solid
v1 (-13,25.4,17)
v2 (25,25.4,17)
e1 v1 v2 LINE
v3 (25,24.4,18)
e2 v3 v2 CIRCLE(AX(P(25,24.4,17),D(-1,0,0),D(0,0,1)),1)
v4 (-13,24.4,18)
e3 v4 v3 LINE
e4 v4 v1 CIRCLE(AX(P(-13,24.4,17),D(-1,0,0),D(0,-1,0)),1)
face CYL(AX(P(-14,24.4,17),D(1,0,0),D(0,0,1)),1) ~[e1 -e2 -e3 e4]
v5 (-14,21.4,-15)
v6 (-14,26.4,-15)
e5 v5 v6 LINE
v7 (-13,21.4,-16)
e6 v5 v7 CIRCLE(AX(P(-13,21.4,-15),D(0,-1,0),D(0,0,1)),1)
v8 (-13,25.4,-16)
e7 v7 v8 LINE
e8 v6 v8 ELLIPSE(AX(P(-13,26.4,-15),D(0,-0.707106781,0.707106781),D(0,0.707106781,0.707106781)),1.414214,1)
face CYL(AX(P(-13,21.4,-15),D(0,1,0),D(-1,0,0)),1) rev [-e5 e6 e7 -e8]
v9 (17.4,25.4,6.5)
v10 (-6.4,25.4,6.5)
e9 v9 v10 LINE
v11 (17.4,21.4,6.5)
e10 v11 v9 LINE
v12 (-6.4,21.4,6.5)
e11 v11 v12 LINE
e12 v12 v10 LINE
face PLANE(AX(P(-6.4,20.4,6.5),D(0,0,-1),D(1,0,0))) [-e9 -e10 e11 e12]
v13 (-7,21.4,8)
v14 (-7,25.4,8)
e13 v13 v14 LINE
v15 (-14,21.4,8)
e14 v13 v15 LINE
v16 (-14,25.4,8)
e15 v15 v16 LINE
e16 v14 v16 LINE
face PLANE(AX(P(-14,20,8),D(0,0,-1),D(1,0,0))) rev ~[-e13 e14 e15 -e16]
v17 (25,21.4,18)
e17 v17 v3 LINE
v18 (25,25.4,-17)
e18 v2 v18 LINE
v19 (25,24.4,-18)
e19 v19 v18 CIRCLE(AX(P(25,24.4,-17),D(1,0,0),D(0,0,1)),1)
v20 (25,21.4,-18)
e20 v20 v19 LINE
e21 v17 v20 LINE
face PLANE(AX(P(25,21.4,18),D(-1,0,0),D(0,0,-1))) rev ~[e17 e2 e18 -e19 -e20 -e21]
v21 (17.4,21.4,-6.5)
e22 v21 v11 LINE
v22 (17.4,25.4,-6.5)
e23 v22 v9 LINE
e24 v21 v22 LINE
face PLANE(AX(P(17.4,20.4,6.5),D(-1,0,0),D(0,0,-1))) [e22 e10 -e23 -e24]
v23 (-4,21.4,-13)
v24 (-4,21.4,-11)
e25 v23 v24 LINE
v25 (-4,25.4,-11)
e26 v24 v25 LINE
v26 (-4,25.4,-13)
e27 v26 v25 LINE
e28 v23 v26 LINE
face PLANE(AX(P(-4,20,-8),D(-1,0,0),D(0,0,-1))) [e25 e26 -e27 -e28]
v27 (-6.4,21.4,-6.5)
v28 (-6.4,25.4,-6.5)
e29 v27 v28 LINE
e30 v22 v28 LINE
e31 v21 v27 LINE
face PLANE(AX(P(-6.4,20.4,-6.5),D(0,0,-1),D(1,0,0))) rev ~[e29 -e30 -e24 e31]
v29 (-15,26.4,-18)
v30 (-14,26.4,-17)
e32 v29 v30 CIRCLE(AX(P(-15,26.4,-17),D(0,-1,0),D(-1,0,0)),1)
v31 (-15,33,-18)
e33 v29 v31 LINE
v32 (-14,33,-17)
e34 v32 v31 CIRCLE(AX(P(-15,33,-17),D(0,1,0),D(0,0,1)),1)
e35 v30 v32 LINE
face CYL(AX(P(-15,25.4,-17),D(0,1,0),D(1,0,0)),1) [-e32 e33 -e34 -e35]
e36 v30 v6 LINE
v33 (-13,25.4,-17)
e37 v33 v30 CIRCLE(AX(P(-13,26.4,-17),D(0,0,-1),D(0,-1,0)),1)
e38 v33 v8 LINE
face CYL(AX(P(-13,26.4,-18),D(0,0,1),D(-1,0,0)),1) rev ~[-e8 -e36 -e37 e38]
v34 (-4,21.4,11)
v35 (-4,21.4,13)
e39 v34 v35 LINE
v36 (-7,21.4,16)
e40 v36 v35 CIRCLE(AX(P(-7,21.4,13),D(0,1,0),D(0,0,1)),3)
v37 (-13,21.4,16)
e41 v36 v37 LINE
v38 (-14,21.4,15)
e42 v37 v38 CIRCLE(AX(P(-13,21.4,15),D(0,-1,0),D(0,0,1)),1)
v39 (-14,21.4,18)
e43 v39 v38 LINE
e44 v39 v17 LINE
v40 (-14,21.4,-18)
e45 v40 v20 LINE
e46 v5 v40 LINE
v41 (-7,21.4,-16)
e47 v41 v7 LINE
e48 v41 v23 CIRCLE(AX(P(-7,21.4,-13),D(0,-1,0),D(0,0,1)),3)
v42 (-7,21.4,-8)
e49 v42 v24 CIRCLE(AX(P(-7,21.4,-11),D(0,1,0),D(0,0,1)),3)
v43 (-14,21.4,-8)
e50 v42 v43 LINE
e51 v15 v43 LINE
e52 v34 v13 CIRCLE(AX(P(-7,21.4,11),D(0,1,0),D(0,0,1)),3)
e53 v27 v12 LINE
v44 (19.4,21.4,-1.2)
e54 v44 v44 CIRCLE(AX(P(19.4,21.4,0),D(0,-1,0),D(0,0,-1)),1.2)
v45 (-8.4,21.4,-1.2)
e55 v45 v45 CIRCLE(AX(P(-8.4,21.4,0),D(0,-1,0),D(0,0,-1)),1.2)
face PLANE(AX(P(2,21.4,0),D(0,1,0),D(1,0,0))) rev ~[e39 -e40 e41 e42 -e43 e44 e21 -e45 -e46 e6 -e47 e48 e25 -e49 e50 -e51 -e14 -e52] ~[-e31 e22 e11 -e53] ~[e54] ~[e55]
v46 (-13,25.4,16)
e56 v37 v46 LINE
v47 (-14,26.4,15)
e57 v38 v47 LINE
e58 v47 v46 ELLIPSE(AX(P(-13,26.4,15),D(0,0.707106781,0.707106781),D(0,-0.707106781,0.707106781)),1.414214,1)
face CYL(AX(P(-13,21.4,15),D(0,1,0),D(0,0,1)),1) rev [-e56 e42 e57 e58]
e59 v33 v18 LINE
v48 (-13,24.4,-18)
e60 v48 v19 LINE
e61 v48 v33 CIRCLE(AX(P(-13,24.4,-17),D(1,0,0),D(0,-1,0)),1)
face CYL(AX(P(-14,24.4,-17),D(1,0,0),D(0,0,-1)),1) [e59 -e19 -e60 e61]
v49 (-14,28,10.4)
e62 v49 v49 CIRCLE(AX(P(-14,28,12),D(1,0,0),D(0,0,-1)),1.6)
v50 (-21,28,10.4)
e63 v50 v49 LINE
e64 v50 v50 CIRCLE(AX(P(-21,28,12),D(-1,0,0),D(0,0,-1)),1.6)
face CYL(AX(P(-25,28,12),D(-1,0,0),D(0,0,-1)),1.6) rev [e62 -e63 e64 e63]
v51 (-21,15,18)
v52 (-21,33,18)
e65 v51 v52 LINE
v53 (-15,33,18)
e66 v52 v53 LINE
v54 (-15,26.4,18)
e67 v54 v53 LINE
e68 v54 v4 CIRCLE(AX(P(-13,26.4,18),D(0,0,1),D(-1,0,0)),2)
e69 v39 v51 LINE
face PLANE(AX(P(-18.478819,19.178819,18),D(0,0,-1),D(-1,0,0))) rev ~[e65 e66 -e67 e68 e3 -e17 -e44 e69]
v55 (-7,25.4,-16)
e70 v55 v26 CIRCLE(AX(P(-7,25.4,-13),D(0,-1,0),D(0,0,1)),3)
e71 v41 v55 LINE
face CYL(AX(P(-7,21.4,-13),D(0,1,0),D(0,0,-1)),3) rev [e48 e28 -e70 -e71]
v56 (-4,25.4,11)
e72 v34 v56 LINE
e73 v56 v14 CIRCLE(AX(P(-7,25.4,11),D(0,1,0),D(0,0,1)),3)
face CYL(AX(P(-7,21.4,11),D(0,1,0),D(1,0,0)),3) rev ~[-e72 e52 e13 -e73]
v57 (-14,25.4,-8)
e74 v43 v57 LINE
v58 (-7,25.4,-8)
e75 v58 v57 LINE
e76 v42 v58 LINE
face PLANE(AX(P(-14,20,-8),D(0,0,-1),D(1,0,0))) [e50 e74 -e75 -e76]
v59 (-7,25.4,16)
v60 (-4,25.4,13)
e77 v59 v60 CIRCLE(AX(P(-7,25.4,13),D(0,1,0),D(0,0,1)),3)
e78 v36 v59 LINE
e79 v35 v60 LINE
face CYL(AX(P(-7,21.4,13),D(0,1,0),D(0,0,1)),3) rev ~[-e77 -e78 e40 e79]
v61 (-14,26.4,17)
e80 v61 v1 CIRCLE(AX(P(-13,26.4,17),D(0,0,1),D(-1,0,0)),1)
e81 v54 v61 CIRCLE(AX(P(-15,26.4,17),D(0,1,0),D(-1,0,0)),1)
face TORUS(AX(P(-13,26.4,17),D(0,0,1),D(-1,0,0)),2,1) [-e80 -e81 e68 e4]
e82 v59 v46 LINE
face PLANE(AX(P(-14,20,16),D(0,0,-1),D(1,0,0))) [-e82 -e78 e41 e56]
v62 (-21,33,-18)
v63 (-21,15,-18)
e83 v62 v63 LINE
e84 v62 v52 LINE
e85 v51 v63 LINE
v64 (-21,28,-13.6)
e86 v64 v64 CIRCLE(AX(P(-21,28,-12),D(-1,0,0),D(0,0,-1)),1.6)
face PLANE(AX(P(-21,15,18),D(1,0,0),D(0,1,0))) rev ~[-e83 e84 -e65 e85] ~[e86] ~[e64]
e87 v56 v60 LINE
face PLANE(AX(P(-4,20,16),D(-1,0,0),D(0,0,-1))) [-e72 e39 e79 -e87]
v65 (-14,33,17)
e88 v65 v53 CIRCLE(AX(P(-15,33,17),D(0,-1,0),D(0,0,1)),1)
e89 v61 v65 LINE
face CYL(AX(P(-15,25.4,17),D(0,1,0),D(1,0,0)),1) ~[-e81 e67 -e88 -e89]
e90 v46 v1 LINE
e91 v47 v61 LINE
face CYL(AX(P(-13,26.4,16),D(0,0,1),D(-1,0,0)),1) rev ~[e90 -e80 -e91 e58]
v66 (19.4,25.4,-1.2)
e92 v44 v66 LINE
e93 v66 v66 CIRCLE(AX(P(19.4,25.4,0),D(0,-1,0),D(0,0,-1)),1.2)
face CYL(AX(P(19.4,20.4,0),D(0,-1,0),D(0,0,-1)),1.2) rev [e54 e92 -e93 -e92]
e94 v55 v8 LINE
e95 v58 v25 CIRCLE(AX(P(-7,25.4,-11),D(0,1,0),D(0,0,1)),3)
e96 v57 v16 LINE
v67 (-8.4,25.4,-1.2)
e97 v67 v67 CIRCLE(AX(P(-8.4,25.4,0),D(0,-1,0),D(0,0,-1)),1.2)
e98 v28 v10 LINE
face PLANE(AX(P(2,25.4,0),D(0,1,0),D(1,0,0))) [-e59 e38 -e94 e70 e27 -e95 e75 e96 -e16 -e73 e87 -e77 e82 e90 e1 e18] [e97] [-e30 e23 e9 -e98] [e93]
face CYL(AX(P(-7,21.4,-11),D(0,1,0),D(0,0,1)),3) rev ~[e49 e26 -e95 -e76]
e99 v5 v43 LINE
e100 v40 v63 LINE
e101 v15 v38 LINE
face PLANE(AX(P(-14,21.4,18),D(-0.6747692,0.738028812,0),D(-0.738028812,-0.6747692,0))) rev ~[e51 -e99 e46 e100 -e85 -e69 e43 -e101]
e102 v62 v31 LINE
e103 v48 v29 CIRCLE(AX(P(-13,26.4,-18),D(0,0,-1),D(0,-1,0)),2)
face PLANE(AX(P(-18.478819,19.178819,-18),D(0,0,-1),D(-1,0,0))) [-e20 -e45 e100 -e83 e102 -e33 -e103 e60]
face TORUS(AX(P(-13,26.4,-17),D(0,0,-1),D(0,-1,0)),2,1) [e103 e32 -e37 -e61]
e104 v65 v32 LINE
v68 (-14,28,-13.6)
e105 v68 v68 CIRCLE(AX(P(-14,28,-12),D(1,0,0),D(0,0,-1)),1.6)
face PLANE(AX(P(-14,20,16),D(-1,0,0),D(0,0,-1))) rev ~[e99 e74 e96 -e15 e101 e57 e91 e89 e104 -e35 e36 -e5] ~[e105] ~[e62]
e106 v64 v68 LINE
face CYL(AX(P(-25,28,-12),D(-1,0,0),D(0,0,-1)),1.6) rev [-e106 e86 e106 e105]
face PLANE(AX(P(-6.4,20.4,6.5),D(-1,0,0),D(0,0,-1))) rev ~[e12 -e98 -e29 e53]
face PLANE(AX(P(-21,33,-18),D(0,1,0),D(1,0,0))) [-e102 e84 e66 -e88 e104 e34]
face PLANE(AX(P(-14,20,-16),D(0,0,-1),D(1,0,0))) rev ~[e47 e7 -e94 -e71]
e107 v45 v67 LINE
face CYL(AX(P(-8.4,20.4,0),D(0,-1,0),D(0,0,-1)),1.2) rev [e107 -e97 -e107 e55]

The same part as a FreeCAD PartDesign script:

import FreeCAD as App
import Part
import Sketcher
from FreeCAD import Vector
Q = App.Units.Quantity


def edges_at(feature, points):
    """Names of the edges that pass closest to the given points."""
    edges = feature.Shape.Edges
    near = lambda p: min(range(len(edges)), key=lambda i: edges[i].distToShape(Part.Vertex(*p))[0])
    return sorted({f"Edge{near(p) + 1}" for p in points})

doc = App.newDocument("Part")
body = doc.addObject("PartDesign::Body", "Body")

sketch1 = doc.addObject("Sketcher::SketchObject", "Sketch")
body.addObject(sketch1)
sketch1.AttachmentSupport = (doc.XZ_Plane, [""])
sketch1.MapMode = "FlatFace"
sketch1.AttachmentOffset = App.Placement(Vector(0, 0, -21.4), App.Rotation())
sketch1.addGeometry(Part.LineSegment(Vector(-21, -18, 0), Vector(-21, 18, 0)), False)
sketch1.addGeometry(Part.LineSegment(Vector(-21, 18, 0), Vector(25, 18, 0)), False)
sketch1.addGeometry(Part.LineSegment(Vector(25, 18, 0), Vector(25, -18, 0)), False)
sketch1.addGeometry(Part.LineSegment(Vector(25, -18, 0), Vector(-21, -18, 0)), False)
sketch1.addConstraint(Sketcher.Constraint("Coincident", 0, 2, 1, 1))
sketch1.addConstraint(Sketcher.Constraint("Coincident", 1, 2, 2, 1))
sketch1.addConstraint(Sketcher.Constraint("Coincident", 2, 2, 3, 1))
sketch1.addConstraint(Sketcher.Constraint("Coincident", 3, 2, 0, 1))
sketch1.addConstraint(Sketcher.Constraint("Vertical", 0))
sketch1.addConstraint(Sketcher.Constraint("Horizontal", 1))
sketch1.addConstraint(Sketcher.Constraint("Vertical", 2))
sketch1.addConstraint(Sketcher.Constraint("Horizontal", 3))
sketch1.addConstraint(Sketcher.Constraint("DistanceX", 1, 1, 1, 2, Q("46 mm")))
sketch1.addConstraint(Sketcher.Constraint("DistanceY", 0, 1, 0, 2, Q("36 mm")))
sketch1.addConstraint(Sketcher.Constraint("DistanceX", 0, 2, -1, 1, Q("21 mm")))
sketch1.addConstraint(Sketcher.Constraint("DistanceY", -1, 1, 0, 2, Q("18 mm")))
pad1 = doc.addObject("PartDesign::Pad", "Pad")
body.addObject(pad1)
pad1.Profile = sketch1
pad1.Length = 4
pad1.Reversed = True

sketch2 = doc.addObject("Sketcher::SketchObject", "Sketch001")
body.addObject(sketch2)
sketch2.AttachmentSupport = (doc.XY_Plane, [""])
sketch2.MapMode = "FlatFace"
sketch2.AttachmentOffset = App.Placement(Vector(0, 0, -18), App.Rotation())
sketch2.addGeometry(Part.LineSegment(Vector(-21, 33, 0), Vector(-21, 23, 0)), False)
sketch2.addGeometry(Part.LineSegment(Vector(-21, 23, 0), Vector(-14, 23, 0)), False)
sketch2.addGeometry(Part.LineSegment(Vector(-14, 23, 0), Vector(-14, 33, 0)), False)
sketch2.addGeometry(Part.LineSegment(Vector(-14, 33, 0), Vector(-21, 33, 0)), False)
sketch2.addConstraint(Sketcher.Constraint("Coincident", 0, 2, 1, 1))
sketch2.addConstraint(Sketcher.Constraint("Coincident", 1, 2, 2, 1))
sketch2.addConstraint(Sketcher.Constraint("Coincident", 2, 2, 3, 1))
sketch2.addConstraint(Sketcher.Constraint("Coincident", 3, 2, 0, 1))
sketch2.addConstraint(Sketcher.Constraint("Vertical", 0))
sketch2.addConstraint(Sketcher.Constraint("Horizontal", 1))
sketch2.addConstraint(Sketcher.Constraint("Vertical", 2))
sketch2.addConstraint(Sketcher.Constraint("Horizontal", 3))
sketch2.addConstraint(Sketcher.Constraint("DistanceX", 1, 1, 1, 2, Q("7 mm")))
sketch2.addConstraint(Sketcher.Constraint("DistanceY", 0, 2, 0, 1, Q("10 mm")))
sketch2.addConstraint(Sketcher.Constraint("DistanceX", 0, 2, -1, 1, Q("21 mm")))
sketch2.addConstraint(Sketcher.Constraint("DistanceY", -1, 1, 0, 2, Q("23 mm")))
pad2 = doc.addObject("PartDesign::Pad", "Pad001")
body.addObject(pad2)
pad2.Profile = sketch2
pad2.Length = 36

sketch3 = doc.addObject("Sketcher::SketchObject", "Sketch002")
body.addObject(sketch3)
sketch3.AttachmentSupport = (doc.XZ_Plane, [""])
sketch3.MapMode = "FlatFace"
sketch3.AttachmentOffset = App.Placement(Vector(0, 0, -20.4), App.Rotation())
sketch3.addGeometry(Part.LineSegment(Vector(-6, -6, 0), Vector(-6, 6, 0)), False)
sketch3.addGeometry(Part.LineSegment(Vector(-6, 6, 0), Vector(17, 6, 0)), False)
sketch3.addGeometry(Part.LineSegment(Vector(17, 6, 0), Vector(17, -6, 0)), False)
sketch3.addGeometry(Part.LineSegment(Vector(17, -6, 0), Vector(-6, -6, 0)), False)
sketch3.addConstraint(Sketcher.Constraint("Coincident", 0, 2, 1, 1))
sketch3.addConstraint(Sketcher.Constraint("Coincident", 1, 2, 2, 1))
sketch3.addConstraint(Sketcher.Constraint("Coincident", 2, 2, 3, 1))
sketch3.addConstraint(Sketcher.Constraint("Coincident", 3, 2, 0, 1))
sketch3.addConstraint(Sketcher.Constraint("Vertical", 0))
sketch3.addConstraint(Sketcher.Constraint("Horizontal", 1))
sketch3.addConstraint(Sketcher.Constraint("Vertical", 2))
sketch3.addConstraint(Sketcher.Constraint("Horizontal", 3))
sketch3.addConstraint(Sketcher.Constraint("DistanceY", 0, 1, 0, 2, Q("13 mm")))
sketch3.addConstraint(Sketcher.Constraint("DistanceX", 1, 1, 1, 2, Q("23.8 mm")))
sketch3.addConstraint(Sketcher.Constraint("DistanceX", 0, 2, -1, 1, Q("6.4 mm")))
sketch3.addConstraint(Sketcher.Constraint("DistanceY", -1, 1, 0, 2, Q("6.5 mm")))
pocket1 = doc.addObject("PartDesign::Pocket", "Pocket")
body.addObject(pocket1)
pocket1.Profile = sketch3
pocket1.Type = "ThroughAll"

sketch4 = doc.addObject("Sketcher::SketchObject", "Sketch003")
body.addObject(sketch4)
sketch4.AttachmentSupport = (doc.XZ_Plane, [""])
sketch4.MapMode = "FlatFace"
sketch4.AttachmentOffset = App.Placement(Vector(0, 0, -20), App.Rotation())
sketch4.addGeometry(Part.LineSegment(Vector(-14, -16, 0), Vector(-14, -8, 0)), False)
sketch4.addGeometry(Part.LineSegment(Vector(-14, -8, 0), Vector(-4, -8, 0)), False)
sketch4.addGeometry(Part.LineSegment(Vector(-4, -8, 0), Vector(-4, -16, 0)), False)
sketch4.addGeometry(Part.LineSegment(Vector(-4, -16, 0), Vector(-14, -16, 0)), False)
sketch4.addConstraint(Sketcher.Constraint("Coincident", 0, 2, 1, 1))
sketch4.addConstraint(Sketcher.Constraint("Coincident", 1, 2, 2, 1))
sketch4.addConstraint(Sketcher.Constraint("Coincident", 2, 2, 3, 1))
sketch4.addConstraint(Sketcher.Constraint("Coincident", 3, 2, 0, 1))
sketch4.addConstraint(Sketcher.Constraint("Vertical", 0))
sketch4.addConstraint(Sketcher.Constraint("Horizontal", 1))
sketch4.addConstraint(Sketcher.Constraint("Vertical", 2))
sketch4.addConstraint(Sketcher.Constraint("Horizontal", 3))
sketch4.addConstraint(Sketcher.Constraint("DistanceX", 1, 1, 1, 2, Q("10 mm")))
sketch4.addConstraint(Sketcher.Constraint("DistanceY", 0, 1, 0, 2, Q("8 mm")))
sketch4.addConstraint(Sketcher.Constraint("DistanceX", 0, 2, -1, 1, Q("14 mm")))
sketch4.addConstraint(Sketcher.Constraint("DistanceY", 0, 2, -1, 1, Q("8 mm")))
pocket2 = doc.addObject("PartDesign::Pocket", "Pocket001")
body.addObject(pocket2)
pocket2.Profile = sketch4
pocket2.Type = "ThroughAll"

sketch5 = doc.addObject("Sketcher::SketchObject", "Sketch004")
body.addObject(sketch5)
sketch5.AttachmentSupport = (doc.XZ_Plane, [""])
sketch5.MapMode = "FlatFace"
sketch5.AttachmentOffset = App.Placement(Vector(0, 0, -20), App.Rotation())
sketch5.addGeometry(Part.LineSegment(Vector(-14, 8, 0), Vector(-14, 16, 0)), False)
sketch5.addGeometry(Part.LineSegment(Vector(-14, 16, 0), Vector(-4, 16, 0)), False)
sketch5.addGeometry(Part.LineSegment(Vector(-4, 16, 0), Vector(-4, 8, 0)), False)
sketch5.addGeometry(Part.LineSegment(Vector(-4, 8, 0), Vector(-14, 8, 0)), False)
sketch5.addConstraint(Sketcher.Constraint("Coincident", 0, 2, 1, 1))
sketch5.addConstraint(Sketcher.Constraint("Coincident", 1, 2, 2, 1))
sketch5.addConstraint(Sketcher.Constraint("Coincident", 2, 2, 3, 1))
sketch5.addConstraint(Sketcher.Constraint("Coincident", 3, 2, 0, 1))
sketch5.addConstraint(Sketcher.Constraint("Vertical", 0))
sketch5.addConstraint(Sketcher.Constraint("Horizontal", 1))
sketch5.addConstraint(Sketcher.Constraint("Vertical", 2))
sketch5.addConstraint(Sketcher.Constraint("Horizontal", 3))
sketch5.addConstraint(Sketcher.Constraint("DistanceX", 1, 1, 1, 2, Q("10 mm")))
sketch5.addConstraint(Sketcher.Constraint("DistanceY", 0, 1, 0, 2, Q("8 mm")))
sketch5.addConstraint(Sketcher.Constraint("DistanceX", 0, 2, -1, 1, Q("14 mm")))
sketch5.addConstraint(Sketcher.Constraint("DistanceY", -1, 1, 0, 2, Q("16 mm")))
pocket3 = doc.addObject("PartDesign::Pocket", "Pocket002")
body.addObject(pocket3)
pocket3.Profile = sketch5
pocket3.Type = "ThroughAll"

sketch6 = doc.addObject("Sketcher::SketchObject", "Sketch005")
body.addObject(sketch6)
sketch6.AttachmentSupport = (doc.YZ_Plane, [""])
sketch6.MapMode = "FlatFace"
sketch6.AttachmentOffset = App.Placement(Vector(0, 0, -25), App.Rotation())
sketch6.addGeometry(Part.Circle(Vector(28, -12, 0), Vector(0, 0, 1), 1.6), False)
sketch6.addGeometry(Part.Circle(Vector(28, 12, 0), Vector(0, 0, 1), 1.6), False)
sketch6.addConstraint(Sketcher.Constraint("Equal", 0, 1))
sketch6.addConstraint(Sketcher.Constraint("Symmetric", 0, 3, 1, 3, -1))
sketch6.addConstraint(Sketcher.Constraint("Diameter", 0, Q("3.2 mm")))
sketch6.addConstraint(Sketcher.Constraint("DistanceX", -1, 1, 0, 3, Q("28 mm")))
sketch6.addConstraint(Sketcher.Constraint("DistanceY", 0, 3, -1, 1, Q("12 mm")))
pocket4 = doc.addObject("PartDesign::Pocket", "Pocket003")
body.addObject(pocket4)
pocket4.Profile = sketch6
pocket4.Length = 11
pocket4.Reversed = True
doc.recompute()

fillet = doc.addObject("PartDesign::Fillet", "Fillet")
body.addObject(fillet)
fillet.Base = (pocket4, edges_at(pocket4, [
    (-4, 23.4, -8),
    (-4, 23.4, -16),
    (-4, 23.4, 16),
    (-4, 23.4, 8),
]))
fillet.Radius = 3
doc.recompute()

fillet2 = doc.addObject("PartDesign::Fillet", "Fillet001")
body.addObject(fillet2)
fillet2.Base = (fillet, edges_at(fillet, [
    (5.5, 25.4, 18),
    (-14, 25.4, 17),
    (5.5, 25.4, -18),
    (-14, 29.2, 18),
    (-14, 29.2, -18),
    (-14, 25.4, -17),
    (-14, 23.4, -16),
    (-14, 23.4, 16),
]))
fillet2.Radius = 1

sketch7 = doc.addObject("Sketcher::SketchObject", "Sketch006")
body.addObject(sketch7)
sketch7.AttachmentSupport = (doc.XY_Plane, [""])
sketch7.MapMode = "FlatFace"
sketch7.AttachmentOffset = App.Placement(Vector(0, 0, 18), App.Rotation())
sketch7.addGeometry(Part.LineSegment(Vector(-14, 21, 0), Vector(-21, 15, 0)), False)
sketch7.addGeometry(Part.LineSegment(Vector(-21, 15, 0), Vector(-21, 21, 0)), False)
sketch7.addGeometry(Part.LineSegment(Vector(-21, 21, 0), Vector(-14, 21, 0)), False)
sketch7.addConstraint(Sketcher.Constraint("Coincident", 0, 2, 1, 1))
sketch7.addConstraint(Sketcher.Constraint("Coincident", 1, 2, 2, 1))
sketch7.addConstraint(Sketcher.Constraint("Coincident", 2, 2, 0, 1))
sketch7.addConstraint(Sketcher.Constraint("Vertical", 1))
sketch7.addConstraint(Sketcher.Constraint("Horizontal", 2))
sketch7.addConstraint(Sketcher.Constraint("DistanceX", 2, 1, 2, 2, Q("7 mm")))
sketch7.addConstraint(Sketcher.Constraint("DistanceY", 1, 1, 1, 2, Q("6.4 mm")))
sketch7.addConstraint(Sketcher.Constraint("DistanceX", 0, 2, -1, 1, Q("21 mm")))
sketch7.addConstraint(Sketcher.Constraint("DistanceY", -1, 1, 0, 2, Q("15 mm")))
pad3 = doc.addObject("PartDesign::Pad", "Pad002")
body.addObject(pad3)
pad3.Profile = sketch7
pad3.Length = 36
pad3.Reversed = True

sketch8 = doc.addObject("Sketcher::SketchObject", "Sketch007")
body.addObject(sketch8)
sketch8.AttachmentSupport = (doc.XZ_Plane, [""])
sketch8.MapMode = "FlatFace"
sketch8.AttachmentOffset = App.Placement(Vector(0, 0, -20.4), App.Rotation())
sketch8.addGeometry(Part.Circle(Vector(-8.4, 0, 0), Vector(0, 0, 1), 1.2), False)
sketch8.addGeometry(Part.Circle(Vector(19.4, 0, 0), Vector(0, 0, 1), 1.2), False)
sketch8.addConstraint(Sketcher.Constraint("Equal", 0, 1))
sketch8.addConstraint(Sketcher.Constraint("PointOnObject", 0, 3, -1))
sketch8.addConstraint(Sketcher.Constraint("PointOnObject", 1, 3, -1))
sketch8.addConstraint(Sketcher.Constraint("Diameter", 0, Q("2.4 mm")))
sketch8.addConstraint(Sketcher.Constraint("DistanceX", 0, 3, -1, 1, Q("8.4 mm")))
sketch8.addConstraint(Sketcher.Constraint("DistanceX", -1, 1, 1, 3, Q("19.4 mm")))
pocket5 = doc.addObject("PartDesign::Pocket", "Pocket004")
body.addObject(pocket5)
pocket5.Profile = sketch8
pocket5.Type = "ThroughAll"

doc.recompute()
